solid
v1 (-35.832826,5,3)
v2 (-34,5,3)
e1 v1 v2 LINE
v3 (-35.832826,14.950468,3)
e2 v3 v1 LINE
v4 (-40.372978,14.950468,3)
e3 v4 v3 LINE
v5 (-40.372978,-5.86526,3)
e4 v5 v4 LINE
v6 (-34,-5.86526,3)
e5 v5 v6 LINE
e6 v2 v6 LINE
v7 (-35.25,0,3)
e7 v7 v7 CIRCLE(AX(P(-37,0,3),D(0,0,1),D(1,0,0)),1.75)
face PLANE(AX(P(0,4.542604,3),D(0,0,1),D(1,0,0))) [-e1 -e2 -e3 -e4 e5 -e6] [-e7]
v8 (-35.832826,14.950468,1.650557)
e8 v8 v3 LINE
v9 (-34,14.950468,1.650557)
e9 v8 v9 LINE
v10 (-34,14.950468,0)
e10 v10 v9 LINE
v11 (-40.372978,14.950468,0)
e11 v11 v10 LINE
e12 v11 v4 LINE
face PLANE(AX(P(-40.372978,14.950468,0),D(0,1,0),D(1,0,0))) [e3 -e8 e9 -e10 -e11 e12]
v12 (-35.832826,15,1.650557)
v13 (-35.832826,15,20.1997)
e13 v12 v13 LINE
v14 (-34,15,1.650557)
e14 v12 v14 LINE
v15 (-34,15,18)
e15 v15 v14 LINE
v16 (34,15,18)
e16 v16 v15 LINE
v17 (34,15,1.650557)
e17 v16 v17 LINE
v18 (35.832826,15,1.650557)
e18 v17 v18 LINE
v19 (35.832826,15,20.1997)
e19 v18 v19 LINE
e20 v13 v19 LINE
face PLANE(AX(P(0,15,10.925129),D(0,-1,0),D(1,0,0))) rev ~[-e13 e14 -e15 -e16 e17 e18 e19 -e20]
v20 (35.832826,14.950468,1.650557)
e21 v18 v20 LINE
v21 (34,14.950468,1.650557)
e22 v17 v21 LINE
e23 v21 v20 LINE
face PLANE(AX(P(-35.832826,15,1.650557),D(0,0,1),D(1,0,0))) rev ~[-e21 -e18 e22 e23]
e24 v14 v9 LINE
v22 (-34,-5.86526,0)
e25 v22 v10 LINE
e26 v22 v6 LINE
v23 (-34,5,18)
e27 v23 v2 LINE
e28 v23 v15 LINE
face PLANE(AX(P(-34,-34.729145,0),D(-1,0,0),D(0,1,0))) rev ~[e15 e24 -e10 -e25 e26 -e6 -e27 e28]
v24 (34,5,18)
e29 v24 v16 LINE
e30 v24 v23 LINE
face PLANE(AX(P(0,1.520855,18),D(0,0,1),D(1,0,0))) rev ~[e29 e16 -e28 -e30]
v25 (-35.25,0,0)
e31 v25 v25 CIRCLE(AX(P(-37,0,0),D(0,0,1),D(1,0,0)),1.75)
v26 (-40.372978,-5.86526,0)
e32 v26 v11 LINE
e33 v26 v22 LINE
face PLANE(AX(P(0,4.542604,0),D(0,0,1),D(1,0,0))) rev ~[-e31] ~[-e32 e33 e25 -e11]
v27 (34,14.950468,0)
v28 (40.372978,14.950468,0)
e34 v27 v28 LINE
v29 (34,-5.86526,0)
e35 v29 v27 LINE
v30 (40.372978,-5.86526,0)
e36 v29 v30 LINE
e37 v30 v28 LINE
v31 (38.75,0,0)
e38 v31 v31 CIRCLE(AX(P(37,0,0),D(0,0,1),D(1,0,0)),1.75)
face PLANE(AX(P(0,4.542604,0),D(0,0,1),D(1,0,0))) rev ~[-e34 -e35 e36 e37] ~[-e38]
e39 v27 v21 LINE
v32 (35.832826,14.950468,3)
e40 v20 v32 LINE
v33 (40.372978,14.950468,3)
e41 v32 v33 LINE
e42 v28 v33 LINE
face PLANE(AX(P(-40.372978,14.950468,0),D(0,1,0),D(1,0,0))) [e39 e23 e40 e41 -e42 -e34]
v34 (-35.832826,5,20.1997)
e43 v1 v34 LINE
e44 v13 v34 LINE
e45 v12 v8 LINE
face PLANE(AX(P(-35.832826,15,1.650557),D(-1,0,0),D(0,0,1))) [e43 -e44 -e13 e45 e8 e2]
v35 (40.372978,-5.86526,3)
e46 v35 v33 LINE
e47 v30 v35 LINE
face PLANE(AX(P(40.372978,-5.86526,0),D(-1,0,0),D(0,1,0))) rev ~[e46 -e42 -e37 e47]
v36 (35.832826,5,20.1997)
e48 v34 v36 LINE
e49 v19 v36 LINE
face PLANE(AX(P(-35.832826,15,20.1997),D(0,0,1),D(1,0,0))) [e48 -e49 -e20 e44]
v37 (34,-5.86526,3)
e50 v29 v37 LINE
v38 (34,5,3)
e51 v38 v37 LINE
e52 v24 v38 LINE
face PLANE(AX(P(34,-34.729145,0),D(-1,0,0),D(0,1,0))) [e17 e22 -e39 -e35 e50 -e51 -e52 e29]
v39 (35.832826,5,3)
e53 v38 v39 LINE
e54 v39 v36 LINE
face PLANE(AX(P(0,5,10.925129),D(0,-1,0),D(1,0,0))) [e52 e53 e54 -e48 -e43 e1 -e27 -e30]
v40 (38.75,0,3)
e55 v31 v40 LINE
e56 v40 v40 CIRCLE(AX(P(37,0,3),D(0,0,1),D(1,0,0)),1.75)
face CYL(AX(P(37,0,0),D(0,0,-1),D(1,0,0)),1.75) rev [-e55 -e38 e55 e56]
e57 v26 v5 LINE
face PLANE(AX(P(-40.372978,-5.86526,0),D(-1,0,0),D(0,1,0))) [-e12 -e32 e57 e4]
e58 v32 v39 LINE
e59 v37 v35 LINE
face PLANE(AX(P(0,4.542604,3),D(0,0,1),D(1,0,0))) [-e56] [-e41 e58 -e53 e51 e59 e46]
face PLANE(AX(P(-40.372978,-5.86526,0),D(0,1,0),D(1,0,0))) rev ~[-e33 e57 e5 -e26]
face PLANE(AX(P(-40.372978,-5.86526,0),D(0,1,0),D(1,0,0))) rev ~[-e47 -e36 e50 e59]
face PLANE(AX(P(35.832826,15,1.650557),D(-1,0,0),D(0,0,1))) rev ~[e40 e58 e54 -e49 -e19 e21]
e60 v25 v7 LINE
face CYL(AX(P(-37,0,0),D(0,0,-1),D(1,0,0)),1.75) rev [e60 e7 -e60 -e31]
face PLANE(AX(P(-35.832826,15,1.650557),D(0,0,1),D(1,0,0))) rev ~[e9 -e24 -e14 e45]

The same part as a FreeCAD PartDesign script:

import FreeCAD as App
import Part
import Sketcher
Q = App.Units.Quantity


def add_polygon(sketch, points):
    """Adds a closed chain of lines whose ends are joined by coincident constraints."""
    first, n = sketch.GeometryCount, len(points)
    for a, b in zip(points, points[1:] + points[:1]):
        sketch.addGeometry(Part.LineSegment(App.Vector(*a, 0), App.Vector(*b, 0)), False)
    for i in range(n):
        sketch.addConstraint(Sketcher.Constraint("Coincident", first + i, 2, first + (i + 1) % n, 1))

doc = App.newDocument("Part")
body = doc.addObject("PartDesign::Body", "Body")

# Sketch on XY plane
sketch1 = doc.addObject("Sketcher::SketchObject", "Sketch")
body.addObject(sketch1)
sketch1.AttachmentSupport = (doc.XY_Plane, [""])
sketch1.MapMode = "FlatFace"
add_polygon(sketch1, [(-34, 38), (-34, -35), (34, -35), (34, 38)])  # lines 0-3
sketch1.addConstraint([
    Sketcher.Constraint("Vertical", 0),
    Sketcher.Constraint("Horizontal", 1),
    Sketcher.Constraint("Vertical", 2),
    Sketcher.Constraint("Horizontal", 3),
    Sketcher.Constraint("DistanceX", 1, 1, 1, 2, Q("68 mm")),
    Sketcher.Constraint("DistanceY", 0, 2, 0, 1, Q("72.5 mm")),
    Sketcher.Constraint("DistanceX", 0, 2, -1, 1, Q("34 mm")),
    Sketcher.Constraint("DistanceY", 0, 2, -1, 1, Q("34.729145 mm")),
])
pad1 = doc.addObject("PartDesign::Pad", "Pad")
body.addObject(pad1)
pad1.Profile = sketch1
pad1.Length = 18
body2 = doc.addObject("PartDesign::Body", "Body001")

# Sketch on XZ plane
sketch2 = doc.addObject("Sketcher::SketchObject", "Sketch001")
body2.addObject(sketch2)
sketch2.AttachmentSupport = (doc.getObject("XZ_Plane001"), [""])
sketch2.MapMode = "FlatFace"
sketch2.AttachmentOffset = App.Placement(App.Vector(0, 0, -15), App.Rotation())
add_polygon(sketch2, [(-36, 20), (-36, 2), (36, 2), (36, 20)])  # lines 0-3
sketch2.addConstraint([
    Sketcher.Constraint("Vertical", 0),
    Sketcher.Constraint("Horizontal", 1),
    Sketcher.Constraint("Vertical", 2),
    Sketcher.Constraint("Horizontal", 3),
    Sketcher.Constraint("DistanceX", 1, 1, 1, 2, Q("71.665652 mm")),
    Sketcher.Constraint("DistanceY", -1, 1, 2, 2, Q("20.1997 mm")),
    Sketcher.Constraint("DistanceY", 0, 2, 0, 1, Q("18.549143 mm")),
    Sketcher.Constraint("DistanceX", 0, 2, -1, 1, Q("35.832826 mm")),
])
pad2 = doc.addObject("PartDesign::Pad", "Pad001")
body2.addObject(pad2)
pad2.Profile = sketch2
pad2.Length = 10
body3 = doc.addObject("PartDesign::Body", "Body002")

# Sketch on XY plane
sketch3 = doc.addObject("Sketcher::SketchObject", "Sketch002")
body3.addObject(sketch3)
sketch3.AttachmentSupport = (doc.getObject("XY_Plane002"), [""])
sketch3.MapMode = "FlatFace"
add_polygon(sketch3, [(-40.4, 15), (-40.4, -5.9), (40.4, -5.9), (40.4, 15)])  # lines 0-3
sketch3.addGeometry(Part.Circle(App.Vector(-37, 0, 0), App.Vector(0, 0, 1), 1.8), False)  # 4
sketch3.addGeometry(Part.Circle(App.Vector(37, 0, 0), App.Vector(0, 0, 1), 1.8), False)  # 5
sketch3.addConstraint([
    Sketcher.Constraint("Vertical", 0),
    Sketcher.Constraint("Horizontal", 1),
    Sketcher.Constraint("Vertical", 2),
    Sketcher.Constraint("Horizontal", 3),
    Sketcher.Constraint("Equal", 4, 5),
    Sketcher.Constraint("Symmetric", 4, 3, 5, 3, -1, 1),
    Sketcher.Constraint("PointOnObject", 4, 3, -1),
    Sketcher.Constraint("Diameter", 4, Q("3.5 mm")),
    Sketcher.Constraint("DistanceX", 4, 3, -1, 1, Q("37 mm")),
    Sketcher.Constraint("DistanceY", 0, 2, 0, 1, Q("20.815728 mm")),
    Sketcher.Constraint("DistanceX", 1, 1, 1, 2, Q("80.745956 mm")),
    Sketcher.Constraint("DistanceX", 0, 2, -1, 1, Q("40.372978 mm")),
    Sketcher.Constraint("DistanceY", 0, 2, -1, 1, Q("5.86526 mm")),
])
pad3 = doc.addObject("PartDesign::Pad", "Pad002")
body3.addObject(pad3)
pad3.Profile = sketch3
pad3.Length = 3
doc.recompute()

boolean = doc.addObject("PartDesign::Boolean", "Boolean")
body3.addObject(boolean)
boolean.Type = "Fuse"
boolean.addObjects([body2])
doc.recompute()

boolean2 = doc.addObject("PartDesign::Boolean", "Boolean001")
body3.addObject(boolean2)
boolean2.Type = "Cut"
boolean2.addObjects([body])

doc.recompute()
